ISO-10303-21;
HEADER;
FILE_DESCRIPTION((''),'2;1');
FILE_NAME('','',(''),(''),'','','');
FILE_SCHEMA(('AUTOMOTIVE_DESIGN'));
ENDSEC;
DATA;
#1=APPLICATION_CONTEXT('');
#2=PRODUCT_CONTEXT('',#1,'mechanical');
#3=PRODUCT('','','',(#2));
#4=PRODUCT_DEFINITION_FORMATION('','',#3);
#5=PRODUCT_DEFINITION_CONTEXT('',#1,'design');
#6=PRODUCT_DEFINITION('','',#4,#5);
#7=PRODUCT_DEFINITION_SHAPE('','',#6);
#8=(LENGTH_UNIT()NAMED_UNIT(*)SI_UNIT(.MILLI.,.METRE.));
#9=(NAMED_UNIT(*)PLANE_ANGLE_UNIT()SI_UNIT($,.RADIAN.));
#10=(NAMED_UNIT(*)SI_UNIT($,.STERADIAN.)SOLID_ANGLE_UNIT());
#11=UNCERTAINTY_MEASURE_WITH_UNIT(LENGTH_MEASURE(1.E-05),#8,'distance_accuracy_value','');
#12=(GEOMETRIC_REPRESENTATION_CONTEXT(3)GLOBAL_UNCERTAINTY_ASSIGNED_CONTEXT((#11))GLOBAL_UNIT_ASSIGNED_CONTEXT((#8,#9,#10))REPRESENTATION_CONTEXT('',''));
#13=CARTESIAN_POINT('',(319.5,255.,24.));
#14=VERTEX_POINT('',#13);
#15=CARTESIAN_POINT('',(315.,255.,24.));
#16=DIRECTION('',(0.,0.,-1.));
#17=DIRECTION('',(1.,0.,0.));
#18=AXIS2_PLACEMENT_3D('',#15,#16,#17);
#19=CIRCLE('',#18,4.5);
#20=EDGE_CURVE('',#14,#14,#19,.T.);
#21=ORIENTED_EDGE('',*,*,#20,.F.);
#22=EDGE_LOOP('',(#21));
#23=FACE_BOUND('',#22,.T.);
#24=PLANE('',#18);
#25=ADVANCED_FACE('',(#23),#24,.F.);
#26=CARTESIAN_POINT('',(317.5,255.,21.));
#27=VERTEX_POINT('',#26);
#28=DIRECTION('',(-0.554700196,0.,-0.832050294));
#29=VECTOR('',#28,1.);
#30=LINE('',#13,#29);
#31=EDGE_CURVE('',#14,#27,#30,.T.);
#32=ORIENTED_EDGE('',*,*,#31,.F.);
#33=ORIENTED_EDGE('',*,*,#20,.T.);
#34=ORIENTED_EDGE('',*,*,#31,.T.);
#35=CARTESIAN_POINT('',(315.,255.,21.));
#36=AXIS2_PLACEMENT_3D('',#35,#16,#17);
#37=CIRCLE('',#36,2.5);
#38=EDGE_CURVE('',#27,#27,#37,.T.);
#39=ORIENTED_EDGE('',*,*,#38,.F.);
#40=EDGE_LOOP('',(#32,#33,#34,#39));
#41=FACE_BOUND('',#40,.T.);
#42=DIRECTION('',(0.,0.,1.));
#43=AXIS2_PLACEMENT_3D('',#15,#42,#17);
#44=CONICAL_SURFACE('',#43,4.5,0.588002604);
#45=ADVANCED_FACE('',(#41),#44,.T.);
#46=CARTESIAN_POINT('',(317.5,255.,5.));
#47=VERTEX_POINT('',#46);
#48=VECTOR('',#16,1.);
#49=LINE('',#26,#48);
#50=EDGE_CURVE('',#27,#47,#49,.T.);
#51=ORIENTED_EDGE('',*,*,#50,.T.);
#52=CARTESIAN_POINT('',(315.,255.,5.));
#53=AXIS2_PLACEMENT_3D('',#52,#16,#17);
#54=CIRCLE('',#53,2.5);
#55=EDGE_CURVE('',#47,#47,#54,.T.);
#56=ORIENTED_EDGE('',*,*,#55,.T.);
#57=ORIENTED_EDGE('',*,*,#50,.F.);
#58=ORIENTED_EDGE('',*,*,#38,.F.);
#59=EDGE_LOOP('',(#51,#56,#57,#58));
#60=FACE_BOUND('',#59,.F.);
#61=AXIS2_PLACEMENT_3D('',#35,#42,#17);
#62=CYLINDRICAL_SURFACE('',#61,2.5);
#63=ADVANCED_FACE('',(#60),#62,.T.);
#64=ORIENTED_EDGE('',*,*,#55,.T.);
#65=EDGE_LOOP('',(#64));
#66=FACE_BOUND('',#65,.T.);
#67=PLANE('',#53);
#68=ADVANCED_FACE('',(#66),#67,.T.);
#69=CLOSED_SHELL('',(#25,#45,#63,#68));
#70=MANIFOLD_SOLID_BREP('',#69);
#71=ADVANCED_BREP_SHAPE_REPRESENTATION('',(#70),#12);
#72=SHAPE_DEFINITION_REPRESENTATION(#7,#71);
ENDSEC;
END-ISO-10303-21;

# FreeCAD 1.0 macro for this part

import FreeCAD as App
import Part
import Sketcher

doc = App.newDocument("Part")
params = doc.addObject("Spreadsheet::Sheet", "Params")
for row, (alias, value) in enumerate([
    ("sketch1_height", "3 mm"),
    ("sketch1_width", "4.5 mm"),
    ("sketch1_width2", "2.5 mm"),
    ("revolution_angle", "360 deg"),
    ("sketch2_diameter", "5 mm"),
    ("pad1_length", "16 mm"),
], start=1):
    params.set(f"A{row}", alias)
    params.set(f"B{row}", "=" + value)
    params.setAlias(f"B{row}", alias)

body = doc.addObject("PartDesign::Body", "Body")

# Sketch on XZ plane
sketch1 = body.newObject("Sketcher::SketchObject", "Sketch")
sketch1.AttachmentSupport = (doc.getObject("XZ_Plane"), [""])
sketch1.MapMode = "FlatFace"
sketch1.addGeometry(Part.LineSegment(App.Vector(0, -3, 0), App.Vector(4.5, -3, 0)), False)
sketch1.addGeometry(Part.LineSegment(App.Vector(4.5, -3, 0), App.Vector(2.5, 0, 0)), False)
sketch1.addGeometry(Part.LineSegment(App.Vector(2.5, 0, 0), App.Vector(0, 0, 0)), False)
sketch1.addGeometry(Part.LineSegment(App.Vector(0, 0, 0), App.Vector(0, -3, 0)), False)
sketch1.addConstraint(Sketcher.Constraint("Coincident", 0, 2, 1, 1))
sketch1.addConstraint(Sketcher.Constraint("Coincident", 1, 2, 2, 1))
sketch1.addConstraint(Sketcher.Constraint("Coincident", 2, 2, 3, 1))
sketch1.addConstraint(Sketcher.Constraint("Coincident", 3, 2, 0, 1))
sketch1.addConstraint(Sketcher.Constraint("Horizontal", 0))
sketch1.addConstraint(Sketcher.Constraint("Horizontal", 2))
sketch1.addConstraint(Sketcher.Constraint("Vertical", 3))
sketch1.addConstraint(Sketcher.Constraint("Coincident", 2, 2, -1, 1))
sketch1.addConstraint(Sketcher.Constraint("DistanceY", 3, 2, 3, 1, 3.0))
sketch1.addConstraint(Sketcher.Constraint("DistanceX", 0, 1, 0, 2, 4.5))
sketch1.addConstraint(Sketcher.Constraint("DistanceX", 2, 2, 2, 1, 2.5))
sketch1.setExpression("Constraints[8]", "Params.sketch1_height")
sketch1.setExpression("Constraints[9]", "Params.sketch1_width")
sketch1.setExpression("Constraints[10]", "Params.sketch1_width2")
revolution = body.newObject("PartDesign::Revolution", "Revolution")
revolution.Profile = sketch1
revolution.ReferenceAxis = (sketch1, ["V_Axis"])
revolution.setExpression("Angle", "Params.revolution_angle")
body2 = doc.addObject("PartDesign::Body", "Body001")

# Sketch on XY plane
sketch2 = body2.newObject("Sketcher::SketchObject", "Sketch001")
sketch2.AttachmentSupport = (doc.getObject("XY_Plane001"), [""])
sketch2.MapMode = "FlatFace"
sketch2.addGeometry(Part.Circle(App.Vector(0, 0, 0), App.Vector(0, 0, 1), 2.5), False)
sketch2.addConstraint(Sketcher.Constraint("Coincident", 0, 3, -1, 1))
sketch2.addConstraint(Sketcher.Constraint("Diameter", 0, 5.0))
sketch2.setExpression("Constraints[1]", "Params.sketch2_diameter")
pad1 = body2.newObject("PartDesign::Pad", "Pad")
pad1.Profile = sketch2
pad1.setExpression("Length", "Params.pad1_length")
doc.recompute()

boolean = body2.newObject("PartDesign::Boolean", "Boolean")
boolean.Type = "Fuse"
boolean.addObjects([body])
body3 = doc.addObject("PartDesign::Body", "Body002")
doc.recompute()

body2.Placement = App.Placement(App.Vector(45, 15, 21), App.Rotation(App.Vector(0, 1, 0), 180))
boolean2 = body3.newObject("PartDesign::Boolean", "Boolean001")
boolean2.Type = "Fuse"
boolean2.addObjects([body2])
body4 = doc.addObject("PartDesign::Body", "Body003")
doc.recompute()

body3.Placement = App.Placement(App.Vector(90, 270, 0), App.Rotation(App.Vector(0, 0, 1), 180))
boolean3 = body4.newObject("PartDesign::Boolean", "Boolean002")
boolean3.Type = "Fuse"
boolean3.addObjects([body3])
body5 = doc.addObject("PartDesign::Body", "Body004")
doc.recompute()

body4.Placement = App.Placement(App.Vector(270, 0, 0), App.Rotation(App.Vector(0, 0, 1), 0))
boolean4 = body5.newObject("PartDesign::Boolean", "Boolean003")
boolean4.Type = "Fuse"
boolean4.addObjects([body4])

doc.recompute()
